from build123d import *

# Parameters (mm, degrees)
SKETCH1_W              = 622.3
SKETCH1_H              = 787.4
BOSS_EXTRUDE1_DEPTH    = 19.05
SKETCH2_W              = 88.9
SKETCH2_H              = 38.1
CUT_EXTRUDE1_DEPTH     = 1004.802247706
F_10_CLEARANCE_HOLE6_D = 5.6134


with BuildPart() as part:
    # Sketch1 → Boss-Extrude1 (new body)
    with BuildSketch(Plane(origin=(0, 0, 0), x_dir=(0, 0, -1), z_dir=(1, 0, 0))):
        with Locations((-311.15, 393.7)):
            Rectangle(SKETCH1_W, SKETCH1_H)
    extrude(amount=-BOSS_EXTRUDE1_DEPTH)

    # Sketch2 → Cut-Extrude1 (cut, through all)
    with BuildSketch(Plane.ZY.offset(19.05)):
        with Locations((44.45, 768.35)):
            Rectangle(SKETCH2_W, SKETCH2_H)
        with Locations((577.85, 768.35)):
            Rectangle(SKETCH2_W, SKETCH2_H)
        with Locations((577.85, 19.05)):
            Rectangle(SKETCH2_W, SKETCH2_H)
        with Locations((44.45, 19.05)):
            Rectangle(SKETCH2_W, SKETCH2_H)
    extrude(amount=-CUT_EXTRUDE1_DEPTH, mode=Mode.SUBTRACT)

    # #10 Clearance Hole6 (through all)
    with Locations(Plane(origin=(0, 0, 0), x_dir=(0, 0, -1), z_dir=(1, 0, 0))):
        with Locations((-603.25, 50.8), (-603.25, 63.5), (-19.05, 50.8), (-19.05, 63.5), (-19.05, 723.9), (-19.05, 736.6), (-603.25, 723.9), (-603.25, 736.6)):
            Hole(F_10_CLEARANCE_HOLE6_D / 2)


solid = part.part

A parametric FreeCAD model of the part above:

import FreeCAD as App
import Part
import Sketcher
from FreeCAD import Vector
Q = App.Units.Quantity


def add_polygon(sketch, points):
    """Adds a closed chain of lines whose ends are joined by coincident constraints."""
    first, n = sketch.GeometryCount, len(points)
    for a, b in zip(points, points[1:] + points[:1]):
        sketch.addGeometry(Part.LineSegment(App.Vector(*a, 0), App.Vector(*b, 0)), False)
    for i in range(n):
        sketch.addConstraint(Sketcher.Constraint("Coincident", first + i, 2, first + (i + 1) % n, 1))

doc = App.newDocument("Part")
params = doc.addObject("Spreadsheet::Sheet", "Params")
for row, (alias, value) in enumerate([
    ("sketch1_width", "31 in"),
    ("sketch1_height", "24.5 in"),
    ("pad1_length", "0.75 in"),
    ("sketch2_width", "1.5 in"),
    ("sketch2_height", "3.5 in"),
    ("sketch3_diameter", "0.221 in"),
    ("hole_diameter", "0.221 in"),
], start=1):
    params.set(f"A{row}", alias)
    params.set(f"B{row}", "=" + value)
    params.setAlias(f"B{row}", alias)

body = doc.addObject("PartDesign::Body", "Body")

# Sketch on YZ plane
sketch1 = body.newObject("Sketcher::SketchObject", "Sketch")
sketch1.AttachmentSupport = (doc.getObject("YZ_Plane"), [""])
sketch1.MapMode = "FlatFace"
add_polygon(sketch1, [(787, 622), (0, 622), (0, 0), (787, 0)])  # lines 0-3
sketch1.addConstraint([
    Sketcher.Constraint("Horizontal", 0),
    Sketcher.Constraint("Vertical", 1),
    Sketcher.Constraint("Horizontal", 2),
    Sketcher.Constraint("Vertical", 3),
    Sketcher.Constraint("Coincident", 1, 2, -1, 1),
    Sketcher.Constraint("DistanceX", 0, 2, 0, 1, Q("31 in")),
    Sketcher.Constraint("DistanceY", 1, 2, 1, 1, Q("24.5 in")),
])
sketch1.setExpression("Constraints[9]", "Params.sketch1_width")
sketch1.setExpression("Constraints[10]", "Params.sketch1_height")
pad1 = body.newObject("PartDesign::Pad", "Pad")
pad1.Profile = sketch1
pad1.setExpression("Length", "Params.pad1_length")
pad1.Reversed = True

# Sketch on YZ plane
sketch2 = body.newObject("Sketcher::SketchObject", "Sketch001")
sketch2.AttachmentSupport = (doc.getObject("YZ_Plane"), [""])
sketch2.MapMode = "FlatFace"
sketch2.AttachmentOffset = App.Placement(Vector(0, 0, -0.75 * 25.4), App.Rotation())
add_polygon(sketch2, [(787, 0), (749, 0), (749, 89), (787, 89)])  # lines 0-3
add_polygon(sketch2, [(787, 533), (749, 533), (749, 622), (787, 622)])  # lines 4-7
add_polygon(sketch2, [(38, 533), (0, 533), (0, 622), (38, 622)])  # lines 8-11
add_polygon(sketch2, [(38, 0), (0, 0), (0, 89), (38, 89)])  # lines 12-15
sketch2.addConstraint([
    Sketcher.Constraint("Horizontal", 0),
    Sketcher.Constraint("Vertical", 1),
    Sketcher.Constraint("Horizontal", 2),
    Sketcher.Constraint("Vertical", 3),
    Sketcher.Constraint("Horizontal", 4),
    Sketcher.Constraint("Vertical", 5),
    Sketcher.Constraint("Horizontal", 6),
    Sketcher.Constraint("Vertical", 7),
    Sketcher.Constraint("Horizontal", 8),
    Sketcher.Constraint("Vertical", 9),
    Sketcher.Constraint("Horizontal", 10),
    Sketcher.Constraint("Vertical", 11),
    Sketcher.Constraint("Horizontal", 12),
    Sketcher.Constraint("Vertical", 13),
    Sketcher.Constraint("Horizontal", 14),
    Sketcher.Constraint("Vertical", 15),
    Sketcher.Constraint("Coincident", 12, 2, -1, 1),
    Sketcher.Constraint("PointOnObject", 0, 2, -1),
    Sketcher.Constraint("PointOnObject", 8, 2, -2),
    Sketcher.Constraint("Horizontal", 7, 2, 8, 2),
    Sketcher.Constraint("Horizontal", 6, 2, 9, 2),
    Sketcher.Constraint("Horizontal", 2, 2, 13, 2),
    Sketcher.Constraint("Vertical", 1, 2, 4, 2),
    Sketcher.Constraint("Vertical", 3, 2, 6, 2),
    Sketcher.Constraint("Vertical", 11, 2, 14, 2),
    Sketcher.Constraint("Equal", 6, 8),
    Sketcher.Constraint("Equal", 3, 5),
    Sketcher.Constraint("DistanceX", 0, 2, 0, 1, Q("1.5 in")),
    Sketcher.Constraint("DistanceY", 1, 1, 1, 2, Q("3.5 in")),
    Sketcher.Constraint("DistanceX", -1, 1, 2, 2, Q("31 in")),
    Sketcher.Constraint("DistanceY", -1, 1, 4, 2, Q("21 in")),
])
sketch2.setExpression("Constraints[43]", "Params.sketch2_width")
sketch2.setExpression("Constraints[44]", "Params.sketch2_height")
pocket1 = body.newObject("PartDesign::Pocket", "Pocket")
pocket1.Profile = sketch2
pocket1.Type = "ThroughAll"
pocket1.Reversed = True

# Sketch on YZ plane
sketch3 = body.newObject("Sketcher::SketchObject", "Sketch002")
sketch3.AttachmentSupport = (doc.getObject("YZ_Plane"), [""])
sketch3.MapMode = "FlatFace"
sketch3.addGeometry([
    Part.Circle(Vector(50.8, 603.2, 0), Vector(0, 0, 1), 2.8),  # 0
    Part.Circle(Vector(63.5, 603.2, 0), Vector(0, 0, 1), 2.8),  # 1
    Part.Circle(Vector(50.8, 19.1, 0), Vector(0, 0, 1), 2.8),  # 2
    Part.Circle(Vector(63.5, 19.1, 0), Vector(0, 0, 1), 2.8),  # 3
    Part.Circle(Vector(723.9, 19.1, 0), Vector(0, 0, 1), 2.8),  # 4
    Part.Circle(Vector(736.6, 19.1, 0), Vector(0, 0, 1), 2.8),  # 5
    Part.Circle(Vector(723.9, 603.2, 0), Vector(0, 0, 1), 2.8),  # 6
    Part.Circle(Vector(736.6, 603.2, 0), Vector(0, 0, 1), 2.8),  # 7
], False)
sketch3.addConstraint([
    Sketcher.Constraint("Equal", 0, 1),
    Sketcher.Constraint("Equal", 1, 2),
    Sketcher.Constraint("Equal", 2, 3),
    Sketcher.Constraint("Equal", 3, 4),
    Sketcher.Constraint("Equal", 4, 5),
    Sketcher.Constraint("Equal", 5, 6),
    Sketcher.Constraint("Equal", 6, 7),
    Sketcher.Constraint("Horizontal", 0, 3, 1, 3),
    Sketcher.Constraint("Horizontal", 2, 3, 3, 3),
    Sketcher.Constraint("Horizontal", 3, 3, 4, 3),
    Sketcher.Constraint("Horizontal", 4, 3, 5, 3),
    Sketcher.Constraint("Horizontal", 1, 3, 6, 3),
    Sketcher.Constraint("Horizontal", 6, 3, 7, 3),
    Sketcher.Constraint("Vertical", 0, 3, 2, 3),
    Sketcher.Constraint("Vertical", 1, 3, 3, 3),
    Sketcher.Constraint("Vertical", 4, 3, 6, 3),
    Sketcher.Constraint("Vertical", 5, 3, 7, 3),
    Sketcher.Constraint("Diameter", 0, Q("0.221 in")),
    Sketcher.Constraint("DistanceX", -1, 1, 0, 3, Q("2 in")),
    Sketcher.Constraint("DistanceX", -1, 1, 5, 3, Q("29 in")),
    Sketcher.Constraint("DistanceY", 2, 3, 0, 3, Q("23 in")),
    Sketcher.Constraint("DistanceX", 3, 3, 4, 3, Q("26 in")),
    Sketcher.Constraint("DistanceX", -1, 1, 1, 3, Q("2.5 in")),
    Sketcher.Constraint("DistanceY", -1, 1, 0, 3, Q("23.75 in")),
])
sketch3.setExpression("Constraints[17]", "Params.sketch3_diameter")
doc.recompute()
hole = body.newObject("PartDesign::Hole", "Hole")
hole.Profile = sketch3
hole.ThreadType = "None"
hole.setExpression("Diameter", "Params.hole_diameter")
hole.DepthType = "ThroughAll"

doc.recompute()
